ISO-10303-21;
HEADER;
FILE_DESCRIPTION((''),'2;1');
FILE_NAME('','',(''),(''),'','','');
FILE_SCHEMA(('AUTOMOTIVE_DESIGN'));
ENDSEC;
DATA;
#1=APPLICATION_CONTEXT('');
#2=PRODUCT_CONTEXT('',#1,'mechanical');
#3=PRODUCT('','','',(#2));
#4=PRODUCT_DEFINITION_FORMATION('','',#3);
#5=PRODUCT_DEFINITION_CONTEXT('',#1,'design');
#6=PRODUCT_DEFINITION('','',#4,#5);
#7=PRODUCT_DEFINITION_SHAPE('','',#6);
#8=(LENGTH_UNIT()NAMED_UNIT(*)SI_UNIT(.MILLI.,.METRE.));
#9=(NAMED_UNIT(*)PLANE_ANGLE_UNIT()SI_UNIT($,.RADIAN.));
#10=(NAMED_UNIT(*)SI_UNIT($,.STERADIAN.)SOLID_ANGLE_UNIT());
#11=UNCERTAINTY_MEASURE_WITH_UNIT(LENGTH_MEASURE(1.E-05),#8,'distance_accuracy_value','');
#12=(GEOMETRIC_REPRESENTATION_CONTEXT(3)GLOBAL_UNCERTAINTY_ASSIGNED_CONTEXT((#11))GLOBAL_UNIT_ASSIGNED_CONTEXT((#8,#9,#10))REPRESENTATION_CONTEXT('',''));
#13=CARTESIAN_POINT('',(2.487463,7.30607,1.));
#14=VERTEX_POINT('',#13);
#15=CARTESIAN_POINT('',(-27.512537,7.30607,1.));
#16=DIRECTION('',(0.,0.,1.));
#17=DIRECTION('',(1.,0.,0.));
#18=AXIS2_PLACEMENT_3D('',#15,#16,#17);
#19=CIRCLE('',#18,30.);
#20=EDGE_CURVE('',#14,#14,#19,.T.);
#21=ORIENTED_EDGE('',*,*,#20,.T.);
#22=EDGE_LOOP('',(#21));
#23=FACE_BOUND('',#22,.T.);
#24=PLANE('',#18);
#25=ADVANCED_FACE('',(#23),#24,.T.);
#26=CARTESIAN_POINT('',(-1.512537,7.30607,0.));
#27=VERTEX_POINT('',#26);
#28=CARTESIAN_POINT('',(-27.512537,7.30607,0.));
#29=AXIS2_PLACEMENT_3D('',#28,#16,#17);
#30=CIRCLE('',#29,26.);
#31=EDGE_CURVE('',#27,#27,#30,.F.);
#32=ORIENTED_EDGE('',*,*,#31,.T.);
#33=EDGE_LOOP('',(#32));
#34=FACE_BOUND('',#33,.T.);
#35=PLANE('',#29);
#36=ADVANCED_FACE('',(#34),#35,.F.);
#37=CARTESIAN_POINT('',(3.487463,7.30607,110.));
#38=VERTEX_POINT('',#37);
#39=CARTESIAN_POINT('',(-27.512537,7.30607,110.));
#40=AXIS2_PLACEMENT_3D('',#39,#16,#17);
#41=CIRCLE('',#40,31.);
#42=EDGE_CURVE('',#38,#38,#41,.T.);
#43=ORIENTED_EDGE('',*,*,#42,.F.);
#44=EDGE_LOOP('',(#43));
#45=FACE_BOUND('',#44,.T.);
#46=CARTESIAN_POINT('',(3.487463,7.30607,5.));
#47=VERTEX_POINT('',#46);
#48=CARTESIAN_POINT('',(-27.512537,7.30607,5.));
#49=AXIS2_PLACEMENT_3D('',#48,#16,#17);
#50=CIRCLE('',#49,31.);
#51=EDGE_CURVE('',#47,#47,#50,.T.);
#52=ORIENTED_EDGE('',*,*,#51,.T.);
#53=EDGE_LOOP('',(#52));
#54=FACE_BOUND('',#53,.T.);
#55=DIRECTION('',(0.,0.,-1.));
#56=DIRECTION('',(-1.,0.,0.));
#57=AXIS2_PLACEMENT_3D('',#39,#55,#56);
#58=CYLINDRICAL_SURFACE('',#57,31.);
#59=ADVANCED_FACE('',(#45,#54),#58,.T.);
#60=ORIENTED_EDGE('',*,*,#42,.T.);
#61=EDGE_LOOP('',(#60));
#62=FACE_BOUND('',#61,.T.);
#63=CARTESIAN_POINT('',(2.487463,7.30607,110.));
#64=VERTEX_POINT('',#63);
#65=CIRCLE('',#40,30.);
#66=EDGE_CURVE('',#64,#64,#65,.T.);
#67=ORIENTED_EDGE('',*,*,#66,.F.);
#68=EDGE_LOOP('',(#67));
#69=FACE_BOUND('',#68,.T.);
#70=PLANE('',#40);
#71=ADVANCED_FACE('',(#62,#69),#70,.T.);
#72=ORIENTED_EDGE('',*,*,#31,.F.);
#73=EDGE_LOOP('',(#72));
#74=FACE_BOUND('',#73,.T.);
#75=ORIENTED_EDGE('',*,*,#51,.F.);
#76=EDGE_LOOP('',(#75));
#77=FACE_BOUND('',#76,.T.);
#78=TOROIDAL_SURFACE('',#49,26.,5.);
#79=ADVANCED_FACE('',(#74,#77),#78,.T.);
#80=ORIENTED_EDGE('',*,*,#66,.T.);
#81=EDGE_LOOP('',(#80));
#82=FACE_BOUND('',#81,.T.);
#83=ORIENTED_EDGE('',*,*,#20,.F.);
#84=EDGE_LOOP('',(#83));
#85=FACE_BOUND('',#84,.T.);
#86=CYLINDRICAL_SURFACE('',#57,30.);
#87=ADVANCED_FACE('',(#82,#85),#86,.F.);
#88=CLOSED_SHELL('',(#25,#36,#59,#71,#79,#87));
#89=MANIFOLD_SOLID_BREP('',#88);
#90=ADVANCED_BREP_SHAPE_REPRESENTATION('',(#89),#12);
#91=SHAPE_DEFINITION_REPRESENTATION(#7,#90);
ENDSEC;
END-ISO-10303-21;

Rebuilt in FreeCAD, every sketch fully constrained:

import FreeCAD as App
import Part
import Sketcher

V = App.Vector


def edges_at(feature, points):
    """Names of the edges that pass closest to the given points."""
    edges = feature.Shape.Edges
    near = lambda p: min(range(len(edges)), key=lambda i: edges[i].distToShape(Part.Vertex(*p))[0])
    return sorted({f"Edge{near(p) + 1}" for p in points})


def faces_at(feature, points):
    """Names of the faces that lie closest to the given points."""
    faces = feature.Shape.Faces
    near = lambda p: min(range(len(faces)), key=lambda i: faces[i].distToShape(Part.Vertex(*p))[0])
    return sorted({f"Face{near(p) + 1}" for p in points})

doc = App.newDocument("Part")
body = doc.addObject("PartDesign::Body", "Body")

# Sketch on XY plane
sketch1 = doc.addObject("Sketcher::SketchObject", "Sketch")
body.addObject(sketch1)
sketch1.AttachmentSupport = (doc.XY_Plane, [""])
sketch1.MapMode = "FlatFace"
sketch1.addGeometry(Part.Circle(V(-27.512537, 7.30607, 0), V(0, 0, 1), 31), False)
sketch1.addConstraint(Sketcher.Constraint("Diameter", 0, 62.0))
sketch1.addConstraint(Sketcher.Constraint("DistanceY", -1, 1, 0, 3, 7.30607))
sketch1.addConstraint(Sketcher.Constraint("DistanceX", 0, 3, -1, 1, 27.512537))
pad1 = doc.addObject("PartDesign::Pad", "Pad")
body.addObject(pad1)
pad1.Profile = sketch1
pad1.Length = 110
doc.recompute()

thickness = doc.addObject("PartDesign::Thickness", "Thickness")
body.addObject(thickness)
thickness.Base = (pad1, faces_at(pad1, [(-27.513, 7.306, 110)]))
thickness.Value = 1
thickness.Reversed = True
thickness.Join = "Intersection"
doc.recompute()

fillet = doc.addObject("PartDesign::Fillet", "Fillet")
body.addObject(fillet)
fillet.Base = (thickness, edges_at(thickness, [(-58.513, 7.306, 0)]))
fillet.Radius = 5

doc.recompute()
